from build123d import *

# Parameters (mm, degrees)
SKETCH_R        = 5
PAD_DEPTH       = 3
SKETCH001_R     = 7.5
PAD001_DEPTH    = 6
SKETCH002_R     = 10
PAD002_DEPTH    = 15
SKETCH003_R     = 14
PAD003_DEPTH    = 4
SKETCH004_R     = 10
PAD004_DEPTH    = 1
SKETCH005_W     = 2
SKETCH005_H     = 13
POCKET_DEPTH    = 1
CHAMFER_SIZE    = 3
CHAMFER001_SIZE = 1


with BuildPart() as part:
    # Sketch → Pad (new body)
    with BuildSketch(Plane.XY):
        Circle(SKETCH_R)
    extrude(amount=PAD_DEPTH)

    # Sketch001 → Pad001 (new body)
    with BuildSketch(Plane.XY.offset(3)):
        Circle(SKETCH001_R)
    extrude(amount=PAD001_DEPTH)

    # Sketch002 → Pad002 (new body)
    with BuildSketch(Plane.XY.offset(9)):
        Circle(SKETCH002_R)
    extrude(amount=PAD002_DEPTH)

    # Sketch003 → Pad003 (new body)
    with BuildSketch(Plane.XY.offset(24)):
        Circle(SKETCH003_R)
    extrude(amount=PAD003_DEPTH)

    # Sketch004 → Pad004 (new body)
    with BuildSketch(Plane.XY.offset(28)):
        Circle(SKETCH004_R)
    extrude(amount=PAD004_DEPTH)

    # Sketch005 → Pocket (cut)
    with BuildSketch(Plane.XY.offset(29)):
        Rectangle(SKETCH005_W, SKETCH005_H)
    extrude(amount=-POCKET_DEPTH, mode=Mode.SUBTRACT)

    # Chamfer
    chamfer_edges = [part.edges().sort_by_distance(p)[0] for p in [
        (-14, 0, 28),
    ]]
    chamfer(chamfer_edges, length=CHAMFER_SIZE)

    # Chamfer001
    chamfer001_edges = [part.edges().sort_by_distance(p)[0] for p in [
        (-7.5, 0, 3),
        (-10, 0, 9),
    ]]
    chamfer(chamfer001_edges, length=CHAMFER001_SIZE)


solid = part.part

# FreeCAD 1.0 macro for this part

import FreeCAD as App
import Part
import Sketcher
Q = App.Units.Quantity


def edges_at(feature, points):
    """Names of the edges that pass closest to the given points."""
    edges = feature.Shape.Edges
    near = lambda p: min(range(len(edges)), key=lambda i: edges[i].distToShape(Part.Vertex(*p))[0])
    return sorted({f"Edge{near(p) + 1}" for p in points})

doc = App.newDocument("Part")
body = doc.addObject("PartDesign::Body", "Body")

sketch1 = body.newObject("Sketcher::SketchObject", "Sketch")
sketch1.AttachmentSupport = (doc.getObject("XY_Plane"), [""])
sketch1.MapMode = "FlatFace"
sketch1.addGeometry(Part.Circle(App.Vector(0, 0, 0), App.Vector(0, 0, 1), 5), False)
sketch1.addConstraint(Sketcher.Constraint("Coincident", 0, 3, -1, 1))
sketch1.addConstraint(Sketcher.Constraint("Diameter", 0, Q("10 mm")))
pad1 = body.newObject("PartDesign::Pad", "Pad")
pad1.Profile = sketch1
pad1.Length = 3

sketch2 = body.newObject("Sketcher::SketchObject", "Sketch001")
sketch2.AttachmentSupport = (doc.getObject("XY_Plane"), [""])
sketch2.MapMode = "FlatFace"
sketch2.AttachmentOffset = App.Placement(App.Vector(0, 0, 3), App.Rotation())
sketch2.addGeometry(Part.Circle(App.Vector(0, 0, 0), App.Vector(0, 0, 1), 8), False)
sketch2.addConstraint(Sketcher.Constraint("Coincident", 0, 3, -1, 1))
sketch2.addConstraint(Sketcher.Constraint("Diameter", 0, Q("15 mm")))
pad2 = body.newObject("PartDesign::Pad", "Pad001")
pad2.Profile = sketch2
pad2.Length = 6

sketch3 = body.newObject("Sketcher::SketchObject", "Sketch002")
sketch3.AttachmentSupport = (doc.getObject("XY_Plane"), [""])
sketch3.MapMode = "FlatFace"
sketch3.AttachmentOffset = App.Placement(App.Vector(0, 0, 9), App.Rotation())
sketch3.addGeometry(Part.Circle(App.Vector(0, 0, 0), App.Vector(0, 0, 1), 10), False)
sketch3.addConstraint(Sketcher.Constraint("Coincident", 0, 3, -1, 1))
sketch3.addConstraint(Sketcher.Constraint("Diameter", 0, Q("20 mm")))
pad3 = body.newObject("PartDesign::Pad", "Pad002")
pad3.Profile = sketch3
pad3.Length = 15

sketch4 = body.newObject("Sketcher::SketchObject", "Sketch003")
sketch4.AttachmentSupport = (doc.getObject("XY_Plane"), [""])
sketch4.MapMode = "FlatFace"
sketch4.AttachmentOffset = App.Placement(App.Vector(0, 0, 24), App.Rotation())
sketch4.addGeometry(Part.Circle(App.Vector(0, 0, 0), App.Vector(0, 0, 1), 14), False)
sketch4.addConstraint(Sketcher.Constraint("Coincident", 0, 3, -1, 1))
sketch4.addConstraint(Sketcher.Constraint("Diameter", 0, Q("28 mm")))
pad4 = body.newObject("PartDesign::Pad", "Pad003")
pad4.Profile = sketch4
pad4.Length = 4

sketch5 = body.newObject("Sketcher::SketchObject", "Sketch004")
sketch5.AttachmentSupport = (doc.getObject("XY_Plane"), [""])
sketch5.MapMode = "FlatFace"
sketch5.AttachmentOffset = App.Placement(App.Vector(0, 0, 28), App.Rotation())
sketch5.addGeometry(Part.Circle(App.Vector(0, 0, 0), App.Vector(0, 0, 1), 10), False)
sketch5.addConstraint(Sketcher.Constraint("Coincident", 0, 3, -1, 1))
sketch5.addConstraint(Sketcher.Constraint("Diameter", 0, Q("20 mm")))
pad5 = body.newObject("PartDesign::Pad", "Pad004")
pad5.Profile = sketch5
pad5.Length = 1

sketch6 = body.newObject("Sketcher::SketchObject", "Sketch005")
sketch6.AttachmentSupport = (doc.getObject("XY_Plane"), [""])
sketch6.MapMode = "FlatFace"
sketch6.AttachmentOffset = App.Placement(App.Vector(0, 0, 29), App.Rotation())
sketch6.addGeometry(Part.LineSegment(App.Vector(-1, 6.5, 0), App.Vector(-1, -6.5, 0)), False)
sketch6.addGeometry(Part.LineSegment(App.Vector(-1, -6.5, 0), App.Vector(1, -6.5, 0)), False)
sketch6.addGeometry(Part.LineSegment(App.Vector(1, -6.5, 0), App.Vector(1, 6.5, 0)), False)
sketch6.addGeometry(Part.LineSegment(App.Vector(1, 6.5, 0), App.Vector(-1, 6.5, 0)), False)
sketch6.addConstraint(Sketcher.Constraint("Coincident", 0, 2, 1, 1))
sketch6.addConstraint(Sketcher.Constraint("Coincident", 1, 2, 2, 1))
sketch6.addConstraint(Sketcher.Constraint("Coincident", 2, 2, 3, 1))
sketch6.addConstraint(Sketcher.Constraint("Coincident", 3, 2, 0, 1))
sketch6.addConstraint(Sketcher.Constraint("Vertical", 0))
sketch6.addConstraint(Sketcher.Constraint("Horizontal", 1))
sketch6.addConstraint(Sketcher.Constraint("Vertical", 2))
sketch6.addConstraint(Sketcher.Constraint("Horizontal", 3))
sketch6.addConstraint(Sketcher.Constraint("Symmetric", 0, 2, 2, 2, -1, 1))
sketch6.addConstraint(Sketcher.Constraint("DistanceX", 1, 1, 1, 2, Q("2 mm")))
sketch6.addConstraint(Sketcher.Constraint("DistanceY", 0, 2, 0, 1, Q("13 mm")))
pocket1 = body.newObject("PartDesign::Pocket", "Pocket")
pocket1.Profile = sketch6
pocket1.Length = 1
doc.recompute()

chamfer = body.newObject("PartDesign::Chamfer", "Chamfer")
chamfer.Base = (pocket1, edges_at(pocket1, [(-14, 0, 28)]))
chamfer.Size = 3
doc.recompute()

chamfer2 = body.newObject("PartDesign::Chamfer", "Chamfer001")
chamfer2.Base = (chamfer, edges_at(chamfer, [(-7.5, 0, 3), (-10, 0, 9)]))
chamfer2.Size = 1

doc.recompute()
